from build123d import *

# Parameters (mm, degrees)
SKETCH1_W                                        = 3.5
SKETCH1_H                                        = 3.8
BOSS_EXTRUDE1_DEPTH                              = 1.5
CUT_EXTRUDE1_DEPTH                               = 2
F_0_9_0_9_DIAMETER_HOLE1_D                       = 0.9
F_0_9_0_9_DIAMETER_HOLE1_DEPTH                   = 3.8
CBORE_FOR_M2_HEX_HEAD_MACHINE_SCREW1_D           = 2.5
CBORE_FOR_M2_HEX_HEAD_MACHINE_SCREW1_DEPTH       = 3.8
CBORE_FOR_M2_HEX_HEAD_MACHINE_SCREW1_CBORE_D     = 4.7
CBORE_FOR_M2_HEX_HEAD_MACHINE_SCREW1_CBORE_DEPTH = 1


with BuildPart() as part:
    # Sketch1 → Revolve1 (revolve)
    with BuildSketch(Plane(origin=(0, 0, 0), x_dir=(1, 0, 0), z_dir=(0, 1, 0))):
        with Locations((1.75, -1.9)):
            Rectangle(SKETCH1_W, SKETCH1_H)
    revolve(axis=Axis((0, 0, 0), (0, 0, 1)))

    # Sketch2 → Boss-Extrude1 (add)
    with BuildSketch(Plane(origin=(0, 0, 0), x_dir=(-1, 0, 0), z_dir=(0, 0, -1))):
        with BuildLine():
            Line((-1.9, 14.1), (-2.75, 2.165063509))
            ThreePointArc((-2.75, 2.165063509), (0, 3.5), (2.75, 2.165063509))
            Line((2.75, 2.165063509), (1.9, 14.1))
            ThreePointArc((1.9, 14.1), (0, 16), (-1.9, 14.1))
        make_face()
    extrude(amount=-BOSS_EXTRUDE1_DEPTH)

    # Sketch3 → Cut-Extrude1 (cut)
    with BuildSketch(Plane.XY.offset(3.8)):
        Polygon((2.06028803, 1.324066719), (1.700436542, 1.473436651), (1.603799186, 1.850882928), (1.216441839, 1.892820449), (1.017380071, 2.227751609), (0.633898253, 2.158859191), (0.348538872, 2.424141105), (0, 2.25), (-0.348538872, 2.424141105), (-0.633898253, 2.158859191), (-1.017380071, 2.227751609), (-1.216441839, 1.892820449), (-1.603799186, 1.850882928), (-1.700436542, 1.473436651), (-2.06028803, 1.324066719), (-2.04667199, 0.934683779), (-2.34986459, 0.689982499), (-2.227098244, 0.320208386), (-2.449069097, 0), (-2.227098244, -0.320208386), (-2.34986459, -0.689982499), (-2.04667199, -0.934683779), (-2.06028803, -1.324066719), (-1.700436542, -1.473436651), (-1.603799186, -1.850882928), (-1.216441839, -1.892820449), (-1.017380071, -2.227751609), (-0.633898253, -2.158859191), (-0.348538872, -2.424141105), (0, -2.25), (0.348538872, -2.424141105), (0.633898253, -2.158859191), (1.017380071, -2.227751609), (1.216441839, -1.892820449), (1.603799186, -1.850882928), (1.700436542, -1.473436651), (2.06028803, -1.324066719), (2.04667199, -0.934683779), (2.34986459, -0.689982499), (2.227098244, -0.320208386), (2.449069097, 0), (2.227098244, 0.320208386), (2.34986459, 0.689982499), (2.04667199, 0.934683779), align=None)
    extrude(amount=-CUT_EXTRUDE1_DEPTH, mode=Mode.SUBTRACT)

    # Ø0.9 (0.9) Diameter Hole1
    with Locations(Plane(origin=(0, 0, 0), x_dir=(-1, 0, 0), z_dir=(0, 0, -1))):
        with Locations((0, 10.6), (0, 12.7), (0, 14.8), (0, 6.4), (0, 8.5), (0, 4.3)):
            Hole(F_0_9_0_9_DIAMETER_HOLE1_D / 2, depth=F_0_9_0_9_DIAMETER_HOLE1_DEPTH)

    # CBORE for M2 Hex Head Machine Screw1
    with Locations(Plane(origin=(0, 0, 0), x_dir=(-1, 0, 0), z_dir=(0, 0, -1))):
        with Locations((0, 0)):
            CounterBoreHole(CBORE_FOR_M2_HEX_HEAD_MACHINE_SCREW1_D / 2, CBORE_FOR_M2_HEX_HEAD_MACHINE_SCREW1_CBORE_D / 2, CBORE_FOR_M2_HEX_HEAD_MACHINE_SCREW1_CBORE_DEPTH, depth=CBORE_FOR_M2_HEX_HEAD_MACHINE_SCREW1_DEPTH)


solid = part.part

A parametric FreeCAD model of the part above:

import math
import FreeCAD as App
import Part
import Sketcher
Q = App.Units.Quantity


def add_polygon(sketch, points):
    """Adds a closed chain of lines whose ends are joined by coincident constraints."""
    first, n = sketch.GeometryCount, len(points)
    for a, b in zip(points, points[1:] + points[:1]):
        sketch.addGeometry(Part.LineSegment(App.Vector(*a, 0), App.Vector(*b, 0)), False)
    for i in range(n):
        sketch.addConstraint(Sketcher.Constraint("Coincident", first + i, 2, first + (i + 1) % n, 1))

doc = App.newDocument("Part")
body = doc.addObject("PartDesign::Body", "Body")

# Sketch on XZ plane
sketch1 = doc.addObject("Sketcher::SketchObject", "Sketch")
body.addObject(sketch1)
sketch1.AttachmentSupport = (doc.XZ_Plane, [""])
sketch1.MapMode = "FlatFace"
add_polygon(sketch1, [(0, 0), (0, 3.8), (3.5, 3.8), (3.5, 0)])  # lines 0-3
sketch1.addConstraint([
    Sketcher.Constraint("Vertical", 0),
    Sketcher.Constraint("Horizontal", 1),
    Sketcher.Constraint("Vertical", 2),
    Sketcher.Constraint("Horizontal", 3),
    Sketcher.Constraint("Coincident", 3, 2, -1, 1),
    Sketcher.Constraint("DistanceX", 1, 1, 1, 2, Q("3.5 mm")),
    Sketcher.Constraint("DistanceY", 0, 1, 0, 2, Q("3.8 mm")),
])
revolution = doc.addObject("PartDesign::Revolution", "Revolution")
body.addObject(revolution)
revolution.Profile = sketch1
revolution.ReferenceAxis = (sketch1, ["V_Axis"])
revolution.Angle = 360

# Sketch on XY plane
sketch2 = doc.addObject("Sketcher::SketchObject", "Sketch001")
body.addObject(sketch2)
sketch2.AttachmentSupport = (doc.XY_Plane, [""])
sketch2.MapMode = "FlatFace"
sketch2.addGeometry([
    Part.LineSegment(App.Vector(1.9, 14.1, 0), App.Vector(2.75, 2.165064, 0)),
    Part.ArcOfCircle(Part.Circle(App.Vector(0, 0, 0), App.Vector(0, 0, 1), 3.5), math.radians(38.213211), math.radians(141.786789)),
    Part.LineSegment(App.Vector(-2.75, 2.165064, 0), App.Vector(-1.9, 14.1, 0)),
    Part.ArcOfCircle(Part.Circle(App.Vector(0, 14.1, 0), App.Vector(0, 0, 1), 1.9), math.radians(0), math.radians(180)),
], False)
sketch2.addConstraint([
    Sketcher.Constraint("Coincident", 0, 2, 1, 1),
    Sketcher.Constraint("Coincident", 1, 2, 2, 1),
    Sketcher.Constraint("Coincident", 2, 2, 3, 2),
    Sketcher.Constraint("Coincident", 3, 1, 0, 1),
    Sketcher.Constraint("Coincident", 1, 3, -1, 1),
    Sketcher.Constraint("Symmetric", 2, 2, 3, 1, -2),
    Sketcher.Constraint("Horizontal", 0, 2, 1, 2),
    Sketcher.Constraint("Horizontal", 3, 3, 2, 2),
    Sketcher.Constraint("Radius", 1, Q("3.5 mm")),
    Sketcher.Constraint("Radius", 3, Q("1.9 mm")),
    Sketcher.Constraint("DistanceY", -1, 1, 3, 3, Q("14.1 mm")),
    Sketcher.Constraint("DistanceX", 1, 2, 0, 2, Q("5.5 mm")),
])
pad1 = doc.addObject("PartDesign::Pad", "Pad")
body.addObject(pad1)
pad1.Profile = sketch2
pad1.Length = 1.5

# Sketch on XY plane
sketch3 = doc.addObject("Sketcher::SketchObject", "Sketch002")
body.addObject(sketch3)
sketch3.AttachmentSupport = (doc.XY_Plane, [""])
sketch3.MapMode = "FlatFace"
sketch3.AttachmentOffset = App.Placement(App.Vector(0, 0, 3.8), App.Rotation())
add_polygon(sketch3, [(2.060288, 1.324067), (1.700437, 1.473437), (1.603799, 1.850883), (1.216442, 1.89282), (1.01738, 2.227752), (0.633898, 2.158859), (0.348539, 2.424141), (0, 2.25), (-0.348539, 2.424141), (-0.633898, 2.158859), (-1.01738, 2.227752), (-1.216442, 1.89282), (-1.603799, 1.850883), (-1.700437, 1.473437), (-2.060288, 1.324067), (-2.046672, 0.934684), (-2.349865, 0.689982), (-2.227098, 0.320208), (-2.449069, 0), (-2.227098, -0.320208), (-2.349865, -0.689982), (-2.046672, -0.934684), (-2.060288, -1.324067), (-1.700437, -1.473437), (-1.603799, -1.850883), (-1.216442, -1.89282), (-1.01738, -2.227752), (-0.633898, -2.158859), (-0.348539, -2.424141), (0, -2.25), (0.348539, -2.424141), (0.633898, -2.158859), (1.01738, -2.227752), (1.216442, -1.89282), (1.603799, -1.850883), (1.700437, -1.473437), (2.060288, -1.324067), (2.046672, -0.934684), (2.349865, -0.689982), (2.227098, -0.320208), (2.449069, 0), (2.227098, 0.320208), (2.349865, 0.689982), (2.046672, 0.934684)])  # lines 0-43
sketch3.addConstraint([
    Sketcher.Constraint("Symmetric", 0, 2, 22, 2, -1, 1),
    Sketcher.Constraint("Symmetric", 1, 2, 23, 2, -1, 1),
    Sketcher.Constraint("Symmetric", 2, 2, 24, 2, -1, 1),
    Sketcher.Constraint("Symmetric", 3, 2, 25, 2, -1, 1),
    Sketcher.Constraint("Symmetric", 4, 2, 26, 2, -1, 1),
    Sketcher.Constraint("Symmetric", 5, 2, 27, 2, -1, 1),
    Sketcher.Constraint("Symmetric", 6, 2, 28, 2, -1, 1),
    Sketcher.Constraint("Symmetric", 7, 2, 29, 2, -1, 1),
    Sketcher.Constraint("Symmetric", 8, 2, 30, 2, -1, 1),
    Sketcher.Constraint("Symmetric", 9, 2, 31, 2, -1, 1),
    Sketcher.Constraint("Symmetric", 10, 2, 32, 2, -1, 1),
    Sketcher.Constraint("Symmetric", 11, 2, 33, 2, -1, 1),
    Sketcher.Constraint("Symmetric", 12, 2, 34, 2, -1, 1),
    Sketcher.Constraint("Symmetric", 13, 2, 35, 2, -1, 1),
    Sketcher.Constraint("Symmetric", 14, 2, 36, 2, -1, 1),
    Sketcher.Constraint("Symmetric", 15, 2, 37, 2, -1, 1),
    Sketcher.Constraint("Symmetric", 16, 2, 38, 2, -1, 1),
    Sketcher.Constraint("Symmetric", 17, 2, 39, 2, -1, 1),
    Sketcher.Constraint("Symmetric", 18, 2, 40, 2, -1, 1),
    Sketcher.Constraint("Symmetric", 19, 2, 41, 2, -1, 1),
    Sketcher.Constraint("Symmetric", 20, 2, 42, 2, -1, 1),
    Sketcher.Constraint("Symmetric", 21, 2, 43, 2, -1, 1),
    Sketcher.Constraint("Symmetric", 5, 2, 7, 2, -2),
    Sketcher.Constraint("Symmetric", 4, 2, 8, 2, -2),
    Sketcher.Constraint("Symmetric", 3, 2, 9, 2, -2),
    Sketcher.Constraint("Symmetric", 2, 2, 10, 2, -2),
    Sketcher.Constraint("Symmetric", 1, 2, 11, 2, -2),
    Sketcher.Constraint("Symmetric", 0, 2, 12, 2, -2),
    Sketcher.Constraint("Symmetric", 21, 2, 35, 2, -2),
    Sketcher.Constraint("Symmetric", 20, 2, 36, 2, -2),
    Sketcher.Constraint("Symmetric", 19, 2, 37, 2, -2),
    Sketcher.Constraint("Symmetric", 18, 2, 38, 2, -2),
    Sketcher.Constraint("PointOnObject", 6, 2, -2),
    Sketcher.Constraint("PointOnObject", 17, 2, -1),
    Sketcher.Constraint("Equal", 0, 1),
    Sketcher.Constraint("Equal", 1, 2),
    Sketcher.Constraint("Equal", 2, 3),
    Sketcher.Constraint("Equal", 3, 4),
    Sketcher.Constraint("Equal", 4, 5),
    Sketcher.Constraint("Equal", 5, 6),
    Sketcher.Constraint("Equal", 13, 14),
    Sketcher.Constraint("Equal", 14, 15),
    Sketcher.Constraint("Equal", 15, 16),
    Sketcher.Constraint("Equal", 16, 17),
    Sketcher.Constraint("Angle", 17, Q("-124.72999 deg")),
    Sketcher.Constraint("DistanceY", -1, 1, 6, 2, Q("2.25 mm")),
    Sketcher.Constraint("DistanceX", -1, 1, 1, 2, Q("1.603799 mm")),
    Sketcher.Constraint("DistanceX", -1, 1, 4, 2, Q("0.633898 mm")),
    Sketcher.Constraint("DistanceX", 16, 2, -1, 1, Q("2.227098 mm")),
    Sketcher.Constraint("DistanceY", 14, 2, 11, 2, Q("0.916199 mm")),
    Sketcher.Constraint("DistanceY", 15, 2, 14, 2, Q("0.244701 mm")),
    Sketcher.Constraint("Distance", 0, Q("0.389621 mm")),
    Sketcher.Constraint("DistanceX", -1, 1, 2, 2, Q("1.216442 mm")),
    Sketcher.Constraint("DistanceY", -1, 1, 2, 2, Q("1.89282 mm")),
    Sketcher.Constraint("DistanceX", -1, 1, 3, 2, Q("1.01738 mm")),
    Sketcher.Constraint("DistanceX", 13, 2, -1, 1, Q("2.060288 mm")),
])
pocket1 = doc.addObject("PartDesign::Pocket", "Pocket")
body.addObject(pocket1)
pocket1.Profile = sketch3
pocket1.Length = 2

# Sketch on XY plane
sketch4 = doc.addObject("Sketcher::SketchObject", "Sketch003")
body.addObject(sketch4)
sketch4.AttachmentSupport = (doc.XY_Plane, [""])
sketch4.MapMode = "FlatFace"
sketch4.addGeometry([
    Part.Circle(App.Vector(0, 10.6, 0), App.Vector(0, 0, 1), 0.45),  # 0
    Part.Circle(App.Vector(0, 12.7, 0), App.Vector(0, 0, 1), 0.45),  # 1
    Part.Circle(App.Vector(0, 14.8, 0), App.Vector(0, 0, 1), 0.45),  # 2
    Part.Circle(App.Vector(0, 6.4, 0), App.Vector(0, 0, 1), 0.45),  # 3
    Part.Circle(App.Vector(0, 8.5, 0), App.Vector(0, 0, 1), 0.45),  # 4
    Part.Circle(App.Vector(0, 4.3, 0), App.Vector(0, 0, 1), 0.45),  # 5
], False)
sketch4.addConstraint([
    Sketcher.Constraint("Equal", 0, 1),
    Sketcher.Constraint("Equal", 1, 2),
    Sketcher.Constraint("Equal", 2, 3),
    Sketcher.Constraint("Equal", 3, 4),
    Sketcher.Constraint("Equal", 4, 5),
    Sketcher.Constraint("PointOnObject", 0, 3, -2),
    Sketcher.Constraint("PointOnObject", 1, 3, -2),
    Sketcher.Constraint("PointOnObject", 2, 3, -2),
    Sketcher.Constraint("PointOnObject", 3, 3, -2),
    Sketcher.Constraint("PointOnObject", 4, 3, -2),
    Sketcher.Constraint("PointOnObject", 5, 3, -2),
    Sketcher.Constraint("Diameter", 0, Q("0.9 mm")),
    Sketcher.Constraint("DistanceY", -1, 1, 0, 3, Q("10.6 mm")),
    Sketcher.Constraint("DistanceY", -1, 1, 1, 3, Q("12.7 mm")),
    Sketcher.Constraint("DistanceY", -1, 1, 2, 3, Q("14.8 mm")),
    Sketcher.Constraint("DistanceY", -1, 1, 3, 3, Q("6.4 mm")),
    Sketcher.Constraint("DistanceY", -1, 1, 4, 3, Q("8.5 mm")),
    Sketcher.Constraint("DistanceY", -1, 1, 5, 3, Q("4.3 mm")),
])
doc.recompute()
hole = doc.addObject("PartDesign::Hole", "Hole")
body.addObject(hole)
hole.Profile = sketch4
hole.ThreadType = "None"
hole.Diameter = 0.9
hole.DepthType = "Dimension"
hole.Depth = 3.8
hole.DrillPoint = "Flat"
hole.Reversed = True

# Sketch on XY plane
sketch5 = doc.addObject("Sketcher::SketchObject", "Sketch004")
body.addObject(sketch5)
sketch5.AttachmentSupport = (doc.XY_Plane, [""])
sketch5.MapMode = "FlatFace"
sketch5.addGeometry(Part.Circle(App.Vector(0, 0, 0), App.Vector(0, 0, 1), 1.25), False)
sketch5.addConstraint([
    Sketcher.Constraint("Coincident", 0, 3, -1, 1),
    Sketcher.Constraint("Diameter", 0, Q("2.5 mm")),
])
doc.recompute()
hole2 = doc.addObject("PartDesign::Hole", "Hole001")
body.addObject(hole2)
hole2.Profile = sketch5
hole2.ThreadType = "None"
hole2.Diameter = 2.5
hole2.DepthType = "Dimension"
hole2.Depth = 3.8
hole2.DrillPoint = "Flat"
hole2.HoleCutType = "Counterbore"
hole2.HoleCutDiameter = 4.7
hole2.HoleCutDepth = 1
hole2.Reversed = True

doc.recompute()
